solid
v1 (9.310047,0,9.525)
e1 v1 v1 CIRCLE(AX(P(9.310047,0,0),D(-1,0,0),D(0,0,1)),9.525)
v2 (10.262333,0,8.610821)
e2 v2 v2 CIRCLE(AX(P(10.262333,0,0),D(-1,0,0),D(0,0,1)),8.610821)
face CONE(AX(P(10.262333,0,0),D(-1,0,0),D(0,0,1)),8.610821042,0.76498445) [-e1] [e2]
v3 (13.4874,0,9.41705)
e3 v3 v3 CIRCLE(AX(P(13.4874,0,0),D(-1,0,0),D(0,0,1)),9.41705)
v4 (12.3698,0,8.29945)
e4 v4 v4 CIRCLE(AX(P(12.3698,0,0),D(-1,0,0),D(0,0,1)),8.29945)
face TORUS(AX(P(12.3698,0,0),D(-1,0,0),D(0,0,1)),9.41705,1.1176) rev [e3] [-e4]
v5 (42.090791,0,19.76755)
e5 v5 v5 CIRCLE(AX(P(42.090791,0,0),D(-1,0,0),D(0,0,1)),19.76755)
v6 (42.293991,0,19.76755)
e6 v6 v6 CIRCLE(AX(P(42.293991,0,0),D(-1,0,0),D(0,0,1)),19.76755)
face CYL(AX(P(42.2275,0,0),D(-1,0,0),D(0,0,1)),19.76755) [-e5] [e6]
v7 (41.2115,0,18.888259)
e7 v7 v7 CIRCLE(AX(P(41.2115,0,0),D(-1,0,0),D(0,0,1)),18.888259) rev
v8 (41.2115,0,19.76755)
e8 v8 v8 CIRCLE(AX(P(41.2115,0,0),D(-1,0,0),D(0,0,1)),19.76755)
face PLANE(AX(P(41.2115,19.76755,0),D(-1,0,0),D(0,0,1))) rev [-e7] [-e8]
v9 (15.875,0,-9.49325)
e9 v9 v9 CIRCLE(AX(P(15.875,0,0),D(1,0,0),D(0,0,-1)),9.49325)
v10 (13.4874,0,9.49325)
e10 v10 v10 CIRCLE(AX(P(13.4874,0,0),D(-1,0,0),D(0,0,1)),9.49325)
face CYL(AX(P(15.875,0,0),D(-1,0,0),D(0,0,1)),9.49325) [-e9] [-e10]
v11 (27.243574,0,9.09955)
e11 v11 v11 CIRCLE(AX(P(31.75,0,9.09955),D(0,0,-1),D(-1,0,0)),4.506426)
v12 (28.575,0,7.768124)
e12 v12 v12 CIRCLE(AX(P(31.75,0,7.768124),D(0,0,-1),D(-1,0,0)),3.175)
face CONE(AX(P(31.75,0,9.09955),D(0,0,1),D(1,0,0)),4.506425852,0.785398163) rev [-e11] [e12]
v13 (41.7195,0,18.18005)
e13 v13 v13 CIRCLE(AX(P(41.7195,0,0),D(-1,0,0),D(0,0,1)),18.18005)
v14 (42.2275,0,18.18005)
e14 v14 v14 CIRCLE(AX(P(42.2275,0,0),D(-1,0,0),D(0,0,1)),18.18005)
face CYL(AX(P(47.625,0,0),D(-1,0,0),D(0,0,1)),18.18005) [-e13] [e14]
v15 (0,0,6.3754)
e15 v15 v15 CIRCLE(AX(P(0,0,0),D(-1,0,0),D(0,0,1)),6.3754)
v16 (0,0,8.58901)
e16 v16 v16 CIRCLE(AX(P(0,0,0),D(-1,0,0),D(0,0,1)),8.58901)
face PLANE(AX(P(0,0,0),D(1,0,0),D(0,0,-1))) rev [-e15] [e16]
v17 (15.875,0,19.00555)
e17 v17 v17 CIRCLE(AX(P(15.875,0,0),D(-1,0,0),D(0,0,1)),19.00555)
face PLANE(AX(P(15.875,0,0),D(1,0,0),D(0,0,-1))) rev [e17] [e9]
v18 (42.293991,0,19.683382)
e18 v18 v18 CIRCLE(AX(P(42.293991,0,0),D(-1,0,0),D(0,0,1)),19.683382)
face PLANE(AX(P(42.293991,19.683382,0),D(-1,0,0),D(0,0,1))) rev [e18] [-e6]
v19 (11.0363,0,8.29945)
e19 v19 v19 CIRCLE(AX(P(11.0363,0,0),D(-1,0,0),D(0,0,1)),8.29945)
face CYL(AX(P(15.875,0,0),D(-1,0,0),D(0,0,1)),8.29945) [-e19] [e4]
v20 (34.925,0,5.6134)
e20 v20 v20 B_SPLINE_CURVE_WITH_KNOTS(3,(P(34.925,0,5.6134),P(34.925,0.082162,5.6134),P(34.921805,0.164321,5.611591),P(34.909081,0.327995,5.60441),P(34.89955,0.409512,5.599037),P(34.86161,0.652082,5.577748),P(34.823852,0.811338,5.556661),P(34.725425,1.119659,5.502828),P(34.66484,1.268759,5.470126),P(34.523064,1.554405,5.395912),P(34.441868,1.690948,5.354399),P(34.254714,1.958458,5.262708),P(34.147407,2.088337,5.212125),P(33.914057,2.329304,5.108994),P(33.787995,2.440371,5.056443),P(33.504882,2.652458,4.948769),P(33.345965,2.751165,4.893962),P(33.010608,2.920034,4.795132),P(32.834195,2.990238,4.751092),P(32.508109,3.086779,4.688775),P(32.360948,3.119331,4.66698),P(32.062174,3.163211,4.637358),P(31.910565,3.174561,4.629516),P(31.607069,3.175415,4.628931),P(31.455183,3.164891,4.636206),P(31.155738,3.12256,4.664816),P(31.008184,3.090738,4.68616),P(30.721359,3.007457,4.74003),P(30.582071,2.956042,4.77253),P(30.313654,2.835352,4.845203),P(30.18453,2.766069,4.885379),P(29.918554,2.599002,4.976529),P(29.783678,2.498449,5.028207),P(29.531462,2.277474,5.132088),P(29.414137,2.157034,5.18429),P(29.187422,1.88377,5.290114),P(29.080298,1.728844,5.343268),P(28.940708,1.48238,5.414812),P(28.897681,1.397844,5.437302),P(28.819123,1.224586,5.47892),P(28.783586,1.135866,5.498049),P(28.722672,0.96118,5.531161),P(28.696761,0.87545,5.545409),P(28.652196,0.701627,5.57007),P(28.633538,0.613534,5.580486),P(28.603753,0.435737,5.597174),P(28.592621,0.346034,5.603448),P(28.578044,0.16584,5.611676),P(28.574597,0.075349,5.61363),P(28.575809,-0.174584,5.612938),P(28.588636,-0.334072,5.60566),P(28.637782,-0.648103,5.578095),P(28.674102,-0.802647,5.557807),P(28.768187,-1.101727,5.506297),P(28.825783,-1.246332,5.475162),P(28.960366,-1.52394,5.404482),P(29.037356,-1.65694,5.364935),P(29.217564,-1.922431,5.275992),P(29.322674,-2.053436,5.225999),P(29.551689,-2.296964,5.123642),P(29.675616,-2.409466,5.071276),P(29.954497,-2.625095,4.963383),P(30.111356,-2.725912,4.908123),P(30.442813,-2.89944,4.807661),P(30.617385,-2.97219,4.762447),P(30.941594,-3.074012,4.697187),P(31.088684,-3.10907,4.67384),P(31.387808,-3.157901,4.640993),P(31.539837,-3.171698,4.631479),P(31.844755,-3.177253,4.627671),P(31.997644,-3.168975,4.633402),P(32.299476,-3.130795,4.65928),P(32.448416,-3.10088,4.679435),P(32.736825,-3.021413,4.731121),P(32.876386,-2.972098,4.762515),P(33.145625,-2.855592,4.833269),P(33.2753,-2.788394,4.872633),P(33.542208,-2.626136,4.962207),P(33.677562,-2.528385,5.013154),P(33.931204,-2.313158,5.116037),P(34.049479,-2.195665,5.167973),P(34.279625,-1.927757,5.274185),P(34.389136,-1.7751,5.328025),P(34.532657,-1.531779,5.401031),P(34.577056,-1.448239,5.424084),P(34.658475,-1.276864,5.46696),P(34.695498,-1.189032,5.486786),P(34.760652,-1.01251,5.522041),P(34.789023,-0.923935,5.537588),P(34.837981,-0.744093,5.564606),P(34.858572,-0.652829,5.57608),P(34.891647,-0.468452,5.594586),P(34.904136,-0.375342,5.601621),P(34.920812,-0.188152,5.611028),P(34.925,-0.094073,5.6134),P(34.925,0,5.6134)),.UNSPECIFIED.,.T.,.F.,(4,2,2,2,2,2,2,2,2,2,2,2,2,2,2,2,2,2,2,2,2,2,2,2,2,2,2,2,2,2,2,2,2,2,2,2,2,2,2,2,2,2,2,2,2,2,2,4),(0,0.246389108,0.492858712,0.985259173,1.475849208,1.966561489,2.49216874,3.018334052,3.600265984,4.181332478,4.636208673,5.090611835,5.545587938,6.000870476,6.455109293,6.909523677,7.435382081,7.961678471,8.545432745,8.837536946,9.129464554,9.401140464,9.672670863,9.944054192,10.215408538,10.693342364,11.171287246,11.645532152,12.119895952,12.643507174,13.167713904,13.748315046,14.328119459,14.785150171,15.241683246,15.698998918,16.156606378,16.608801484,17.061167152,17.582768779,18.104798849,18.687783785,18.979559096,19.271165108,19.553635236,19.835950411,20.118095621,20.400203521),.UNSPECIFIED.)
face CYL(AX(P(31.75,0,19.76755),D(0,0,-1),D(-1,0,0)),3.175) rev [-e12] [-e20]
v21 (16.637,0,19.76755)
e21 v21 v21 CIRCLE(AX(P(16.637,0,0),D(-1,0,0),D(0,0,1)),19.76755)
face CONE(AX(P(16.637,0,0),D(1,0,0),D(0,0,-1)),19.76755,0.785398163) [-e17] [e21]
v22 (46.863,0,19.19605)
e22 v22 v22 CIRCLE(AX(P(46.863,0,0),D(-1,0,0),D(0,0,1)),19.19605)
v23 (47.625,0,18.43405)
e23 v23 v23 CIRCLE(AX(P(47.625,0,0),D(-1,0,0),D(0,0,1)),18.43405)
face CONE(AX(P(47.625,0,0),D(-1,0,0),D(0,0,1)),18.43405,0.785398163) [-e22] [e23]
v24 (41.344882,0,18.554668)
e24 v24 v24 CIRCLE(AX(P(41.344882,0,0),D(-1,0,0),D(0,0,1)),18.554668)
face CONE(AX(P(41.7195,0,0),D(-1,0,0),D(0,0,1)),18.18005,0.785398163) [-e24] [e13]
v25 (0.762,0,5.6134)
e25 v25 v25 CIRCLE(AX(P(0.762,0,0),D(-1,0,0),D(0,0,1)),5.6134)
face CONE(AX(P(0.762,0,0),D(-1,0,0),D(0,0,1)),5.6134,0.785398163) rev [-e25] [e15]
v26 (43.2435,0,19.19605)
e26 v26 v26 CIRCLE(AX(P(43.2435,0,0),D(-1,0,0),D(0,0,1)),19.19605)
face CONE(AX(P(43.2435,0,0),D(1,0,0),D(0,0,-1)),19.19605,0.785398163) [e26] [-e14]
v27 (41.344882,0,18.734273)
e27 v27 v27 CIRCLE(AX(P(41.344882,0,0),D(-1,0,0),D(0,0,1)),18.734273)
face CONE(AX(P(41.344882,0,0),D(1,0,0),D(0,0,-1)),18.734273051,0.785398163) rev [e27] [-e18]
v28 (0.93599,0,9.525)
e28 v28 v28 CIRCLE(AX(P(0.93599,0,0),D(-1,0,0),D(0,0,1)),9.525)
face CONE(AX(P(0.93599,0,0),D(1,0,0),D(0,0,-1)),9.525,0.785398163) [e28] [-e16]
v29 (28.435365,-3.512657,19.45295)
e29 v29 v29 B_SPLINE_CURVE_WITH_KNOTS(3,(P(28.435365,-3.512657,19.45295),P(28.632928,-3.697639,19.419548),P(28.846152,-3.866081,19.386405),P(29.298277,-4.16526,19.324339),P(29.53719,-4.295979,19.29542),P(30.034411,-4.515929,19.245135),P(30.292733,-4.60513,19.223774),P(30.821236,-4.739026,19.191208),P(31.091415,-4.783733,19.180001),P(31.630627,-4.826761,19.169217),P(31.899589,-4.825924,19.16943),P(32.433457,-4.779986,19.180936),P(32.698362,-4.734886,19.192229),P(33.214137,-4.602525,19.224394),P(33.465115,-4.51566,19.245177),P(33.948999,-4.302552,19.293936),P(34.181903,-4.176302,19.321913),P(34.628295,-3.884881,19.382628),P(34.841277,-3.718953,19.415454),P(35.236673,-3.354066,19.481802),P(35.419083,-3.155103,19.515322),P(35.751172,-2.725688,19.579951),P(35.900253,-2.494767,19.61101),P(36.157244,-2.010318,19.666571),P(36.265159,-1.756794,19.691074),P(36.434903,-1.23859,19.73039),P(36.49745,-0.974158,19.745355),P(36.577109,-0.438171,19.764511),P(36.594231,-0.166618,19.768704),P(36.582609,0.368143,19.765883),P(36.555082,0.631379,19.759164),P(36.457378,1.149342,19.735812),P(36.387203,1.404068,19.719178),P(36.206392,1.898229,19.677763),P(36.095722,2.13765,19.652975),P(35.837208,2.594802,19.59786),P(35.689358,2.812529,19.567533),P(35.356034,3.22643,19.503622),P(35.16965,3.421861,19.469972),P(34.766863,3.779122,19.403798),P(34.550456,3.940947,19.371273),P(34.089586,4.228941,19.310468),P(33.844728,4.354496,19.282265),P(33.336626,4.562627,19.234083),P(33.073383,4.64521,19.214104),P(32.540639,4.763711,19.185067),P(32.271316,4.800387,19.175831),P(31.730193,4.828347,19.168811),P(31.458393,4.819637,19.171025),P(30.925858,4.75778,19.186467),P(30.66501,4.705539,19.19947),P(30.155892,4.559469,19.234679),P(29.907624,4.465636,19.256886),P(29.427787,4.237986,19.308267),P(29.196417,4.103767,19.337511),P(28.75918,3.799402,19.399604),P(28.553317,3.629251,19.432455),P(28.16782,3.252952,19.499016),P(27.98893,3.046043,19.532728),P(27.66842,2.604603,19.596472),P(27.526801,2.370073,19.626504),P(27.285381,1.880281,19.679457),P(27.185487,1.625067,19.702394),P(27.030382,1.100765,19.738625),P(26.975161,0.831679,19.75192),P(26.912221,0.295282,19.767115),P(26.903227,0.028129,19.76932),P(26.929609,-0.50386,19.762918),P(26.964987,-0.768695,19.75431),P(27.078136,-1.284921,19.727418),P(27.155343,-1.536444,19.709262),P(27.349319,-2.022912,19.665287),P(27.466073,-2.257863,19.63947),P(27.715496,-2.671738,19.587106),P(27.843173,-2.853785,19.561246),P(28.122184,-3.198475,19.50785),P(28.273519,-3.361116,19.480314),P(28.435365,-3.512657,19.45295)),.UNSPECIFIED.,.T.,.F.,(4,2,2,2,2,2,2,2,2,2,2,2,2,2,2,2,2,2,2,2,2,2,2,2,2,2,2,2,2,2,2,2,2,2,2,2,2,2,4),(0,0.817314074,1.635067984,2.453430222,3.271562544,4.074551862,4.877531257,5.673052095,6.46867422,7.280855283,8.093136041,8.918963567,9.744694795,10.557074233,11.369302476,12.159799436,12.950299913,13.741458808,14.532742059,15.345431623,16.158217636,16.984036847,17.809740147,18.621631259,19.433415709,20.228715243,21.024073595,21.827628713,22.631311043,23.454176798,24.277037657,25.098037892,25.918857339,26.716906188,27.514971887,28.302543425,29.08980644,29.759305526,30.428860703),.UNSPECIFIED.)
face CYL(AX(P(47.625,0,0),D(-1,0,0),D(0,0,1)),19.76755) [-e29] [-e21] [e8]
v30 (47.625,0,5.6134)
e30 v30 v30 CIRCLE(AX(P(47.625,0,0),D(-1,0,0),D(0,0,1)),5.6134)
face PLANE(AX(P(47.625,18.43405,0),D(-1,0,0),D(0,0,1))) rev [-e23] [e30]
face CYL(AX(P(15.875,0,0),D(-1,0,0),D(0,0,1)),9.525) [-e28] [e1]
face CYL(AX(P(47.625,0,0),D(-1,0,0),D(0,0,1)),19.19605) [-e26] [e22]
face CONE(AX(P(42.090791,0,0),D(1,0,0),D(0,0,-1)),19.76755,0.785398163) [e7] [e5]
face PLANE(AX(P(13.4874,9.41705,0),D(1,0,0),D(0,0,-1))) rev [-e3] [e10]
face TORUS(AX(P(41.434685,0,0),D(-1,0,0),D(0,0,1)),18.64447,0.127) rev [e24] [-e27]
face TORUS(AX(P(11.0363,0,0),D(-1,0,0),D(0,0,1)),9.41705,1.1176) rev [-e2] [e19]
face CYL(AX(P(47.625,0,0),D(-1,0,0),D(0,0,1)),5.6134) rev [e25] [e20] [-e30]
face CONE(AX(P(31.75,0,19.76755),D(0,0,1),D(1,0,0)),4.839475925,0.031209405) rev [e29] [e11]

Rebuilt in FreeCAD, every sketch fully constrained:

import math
import FreeCAD as App
import Part
import Sketcher
from FreeCAD import Vector
Q = App.Units.Quantity


def add_polygon(sketch, points):
    """Adds a closed chain of lines whose ends are joined by coincident constraints."""
    first, n = sketch.GeometryCount, len(points)
    for a, b in zip(points, points[1:] + points[:1]):
        sketch.addGeometry(Part.LineSegment(App.Vector(*a, 0), App.Vector(*b, 0)), False)
    for i in range(n):
        sketch.addConstraint(Sketcher.Constraint("Coincident", first + i, 2, first + (i + 1) % n, 1))

doc = App.newDocument("Part")
body = doc.addObject("PartDesign::Body", "Body")

sketch1 = body.newObject("Sketcher::SketchObject", "Sketch")
sketch1.AttachmentSupport = (doc.getObject("XY_Plane"), [""])
sketch1.MapMode = "FlatFace"
sketch1.addGeometry([
    Part.LineSegment(Vector(0, 8.58901, 0), Vector(0, 0, 0)),
    Part.LineSegment(Vector(0, 0, 0), Vector(15.875, 0, 0)),
    Part.LineSegment(Vector(15.875, 0, 0), Vector(15.875, 9.49325, 0)),
    Part.LineSegment(Vector(15.875, 9.49325, 0), Vector(13.4874, 9.49325, 0)),
    Part.LineSegment(Vector(13.4874, 9.49325, 0), Vector(13.4874, 9.41705, 0)),
    Part.ArcOfCircle(Part.Circle(Vector(12.3698, 9.41705, 0), Vector(0, 0, 1), 1.1176), math.radians(-90), math.radians(0)),
    Part.LineSegment(Vector(12.3698, 8.29945, 0), Vector(11.0363, 8.29945, 0)),
    Part.ArcOfCircle(Part.Circle(Vector(11.0363, 9.41705, 0), Vector(0, 0, 1), 1.1176), math.radians(-133.83038), math.radians(-90)),
    Part.LineSegment(Vector(10.262333, 8.610821, 0), Vector(9.310047, 9.525, 0)),
    Part.LineSegment(Vector(9.310047, 9.525, 0), Vector(0.93599, 9.525, 0)),
    Part.LineSegment(Vector(0.93599, 9.525, 0), Vector(0, 8.58901, 0)),
], False)
sketch1.addConstraint([
    Sketcher.Constraint("Coincident", 0, 2, 1, 1),
    Sketcher.Constraint("Coincident", 1, 2, 2, 1),
    Sketcher.Constraint("Coincident", 2, 2, 3, 1),
    Sketcher.Constraint("Coincident", 3, 2, 4, 1),
    Sketcher.Constraint("Tangent", 4, 2, 5, 2),
    Sketcher.Constraint("Tangent", 5, 1, 6, 1),
    Sketcher.Constraint("Tangent", 6, 2, 7, 2),
    Sketcher.Constraint("Tangent", 7, 1, 8, 1),
    Sketcher.Constraint("Coincident", 8, 2, 9, 1),
    Sketcher.Constraint("Coincident", 9, 2, 10, 1),
    Sketcher.Constraint("Coincident", 10, 2, 0, 1),
    Sketcher.Constraint("Vertical", 0),
    Sketcher.Constraint("Horizontal", 1),
    Sketcher.Constraint("Vertical", 2),
    Sketcher.Constraint("Horizontal", 3),
    Sketcher.Constraint("Vertical", 4),
    Sketcher.Constraint("Horizontal", 6),
    Sketcher.Constraint("Horizontal", 9),
    Sketcher.Constraint("Coincident", 0, 2, -1, 1),
    Sketcher.Constraint("Equal", 5, 7),
    Sketcher.Constraint("Angle", 10, Q("-135 deg")),
    Sketcher.Constraint("Radius", 5, Q("0.044 in")),
    Sketcher.Constraint("DistanceX", 1, 1, 1, 2, Q("0.625 in")),
    Sketcher.Constraint("DistanceX", 3, 2, 3, 1, Q("0.094 in")),
    Sketcher.Constraint("DistanceY", 4, 2, 4, 1, Q("0.003 in")),
    Sketcher.Constraint("DistanceX", 6, 2, 6, 1, Q("0.0525 in")),
    Sketcher.Constraint("DistanceY", -1, 1, 8, 2, Q("0.375 in")),
    Sketcher.Constraint("DistanceY", 6, 2, 10, 2, Q("0.0114 in")),
    Sketcher.Constraint("DistanceY", 0, 2, 0, 1, 8.58901),
    Sketcher.Constraint("DistanceX", 9, 2, 9, 1, 8.374057),
])
revolution = body.newObject("PartDesign::Revolution", "Revolution")
revolution.Profile = sketch1
revolution.ReferenceAxis = (sketch1, ["H_Axis"])
revolution.Angle = 360

sketch2 = body.newObject("Sketcher::SketchObject", "Sketch001")
sketch2.AttachmentSupport = (doc.getObject("XY_Plane"), [""])
sketch2.MapMode = "FlatFace"
add_polygon(sketch2, [(15.875, 19.00555), (15.875, 0), (47.625, 0), (47.625, 18.43405), (46.863, 19.19605), (43.2435, 19.19605), (42.2275, 18.18005), (41.2115, 18.18005), (41.2115, 19.76755), (16.637, 19.76755)])
sketch2.addConstraint([
    Sketcher.Constraint("Vertical", 0),
    Sketcher.Constraint("Horizontal", 1),
    Sketcher.Constraint("Vertical", 2),
    Sketcher.Constraint("Horizontal", 4),
    Sketcher.Constraint("Horizontal", 6),
    Sketcher.Constraint("Vertical", 7),
    Sketcher.Constraint("Horizontal", 8),
    Sketcher.Constraint("PointOnObject", 0, 2, -1),
    Sketcher.Constraint("Perpendicular", 3, 5),
    Sketcher.Constraint("Parallel", 5, 9),
    Sketcher.Constraint("Equal", 3, 9),
    Sketcher.Constraint("Angle", 3, Q("135 deg")),
    Sketcher.Constraint("DistanceX", 1, 1, 1, 2, Q("1.25 in")),
    Sketcher.Constraint("DistanceX", 6, 2, 6, 1, Q("0.04 in")),
    Sketcher.Constraint("DistanceY", 7, 1, 7, 2, Q("0.0625 in")),
    Sketcher.Constraint("DistanceX", 3, 2, 2, 2, Q("0.03 in")),
    Sketcher.Constraint("DistanceX", 5, 2, 4, 2, Q("0.04 in")),
    Sketcher.Constraint("DistanceX", 4, 2, 4, 1, Q("0.1425 in")),
    Sketcher.Constraint("DistanceX", -1, 1, 0, 2, Q("0.625 in")),
    Sketcher.Constraint("DistanceY", 0, 2, 0, 1, 19.00555),
])
revolution2 = body.newObject("PartDesign::Revolution", "Revolution001")
revolution2.Profile = sketch2
revolution2.ReferenceAxis = (sketch2, ["H_Axis"])
revolution2.Angle = 360

sketch3 = body.newObject("Sketcher::SketchObject", "Sketch002")
sketch3.AttachmentSupport = (doc.getObject("XY_Plane"), [""])
sketch3.MapMode = "FlatFace"
add_polygon(sketch3, [(0, 6.3754), (0, 0), (47.625, 0), (47.625, 5.6134), (0.762, 5.6134)])
sketch3.addConstraint([
    Sketcher.Constraint("Vertical", 0),
    Sketcher.Constraint("Horizontal", 1),
    Sketcher.Constraint("Vertical", 2),
    Sketcher.Constraint("Horizontal", 3),
    Sketcher.Constraint("Coincident", 0, 2, -1, 1),
    Sketcher.Constraint("Angle", 4, Q("135 deg")),
    Sketcher.Constraint("DistanceX", 1, 1, 1, 2, Q("1.875 in")),
    Sketcher.Constraint("DistanceX", 3, 2, 3, 1, Q("1.845 in")),
    Sketcher.Constraint("DistanceY", 0, 2, 0, 1, Q("0.251 in")),
])
groove = body.newObject("PartDesign::Groove", "Groove")
groove.Profile = sketch3
groove.ReferenceAxis = (sketch3, ["H_Axis"])
groove.Angle = 360

sketch4 = body.newObject("Sketcher::SketchObject", "Sketch003")
sketch4.AttachmentSupport = (doc.getObject("XZ_Plane"), [""])
sketch4.MapMode = "FlatFace"
add_polygon(sketch4, [(34.925, 0), (31.75, 0), (31.75, 19.76755), (36.589476, 19.76755), (36.256426, 9.09955), (34.925, 7.768124)])
sketch4.addGeometry(Part.LineSegment(Vector(31.75, 19.76755, 0), Vector(31.75, 0, 0)), True)
sketch4.addConstraint([
    Sketcher.Constraint("Horizontal", 0),
    Sketcher.Constraint("Vertical", 1),
    Sketcher.Constraint("Horizontal", 2),
    Sketcher.Constraint("Vertical", 5),
    Sketcher.Constraint("Vertical", 6),
    Sketcher.Constraint("Coincident", 6, 1, 1, 2),
    Sketcher.Constraint("PointOnObject", 0, 2, -1),
    Sketcher.Constraint("PointOnObject", 6, 2, -1),
    Sketcher.Constraint("Angle", 4, Q("-135 deg")),
    Sketcher.Constraint("DistanceX", 0, 2, 0, 1, Q("0.125 in")),
    Sketcher.Constraint("DistanceX", -1, 1, 0, 2, Q("1.25 in")),
    Sketcher.Constraint("DistanceY", 3, 2, 2, 2, Q("0.42 in")),
    Sketcher.Constraint("DistanceY", 1, 1, 1, 2, 19.76755),
    Sketcher.Constraint("Distance", 4, 1.88292),
    Sketcher.Constraint("DistanceX", 2, 1, 2, 2, 4.839476),
])
groove2 = body.newObject("PartDesign::Groove", "Groove001")
groove2.Profile = sketch4
groove2.ReferenceAxis = (sketch4, ["Axis0"])
groove2.Angle = 360

sketch5 = body.newObject("Sketcher::SketchObject", "Sketch004")
sketch5.AttachmentSupport = (doc.getObject("XY_Plane"), [""])
sketch5.MapMode = "FlatFace"
sketch5.addGeometry([
    Part.LineSegment(Vector(41.2115, 18.888259, 0), Vector(41.2115, 17.92605, 0)),
    Part.LineSegment(Vector(41.2115, 17.92605, 0), Vector(42.2275, 17.92605, 0)),
    Part.LineSegment(Vector(42.2275, 17.92605, 0), Vector(42.2275, 18.18005, 0)),
    Part.LineSegment(Vector(42.2275, 18.18005, 0), Vector(41.7195, 18.18005, 0)),
    Part.LineSegment(Vector(41.7195, 18.18005, 0), Vector(41.344882, 18.554668, 0)),
    Part.ArcOfCircle(Part.Circle(Vector(41.434685, 18.64447, 0), Vector(0, 0, 1), 0.127), math.radians(135), math.radians(225)),
    Part.LineSegment(Vector(41.344882, 18.734273, 0), Vector(42.293991, 19.683382, 0)),
    Part.LineSegment(Vector(42.293991, 19.683382, 0), Vector(42.293991, 19.76755, 0)),
    Part.LineSegment(Vector(42.293991, 19.76755, 0), Vector(42.090791, 19.76755, 0)),
    Part.LineSegment(Vector(42.090791, 19.76755, 0), Vector(41.2115, 18.888259, 0)),
], False)
sketch5.addConstraint([
    Sketcher.Constraint("Coincident", 0, 2, 1, 1),
    Sketcher.Constraint("Coincident", 1, 2, 2, 1),
    Sketcher.Constraint("Coincident", 2, 2, 3, 1),
    Sketcher.Constraint("Coincident", 3, 2, 4, 1),
    Sketcher.Constraint("Tangent", 4, 2, 5, 2),
    Sketcher.Constraint("Tangent", 5, 1, 6, 1),
    Sketcher.Constraint("Coincident", 6, 2, 7, 1),
    Sketcher.Constraint("Coincident", 7, 2, 8, 1),
    Sketcher.Constraint("Coincident", 8, 2, 9, 1),
    Sketcher.Constraint("Coincident", 9, 2, 0, 1),
    Sketcher.Constraint("Vertical", 0),
    Sketcher.Constraint("Horizontal", 1),
    Sketcher.Constraint("Vertical", 2),
    Sketcher.Constraint("Horizontal", 3),
    Sketcher.Constraint("Vertical", 7),
    Sketcher.Constraint("Horizontal", 8),
    Sketcher.Constraint("Perpendicular", 4, 6),
    Sketcher.Constraint("Parallel", 6, 9),
    Sketcher.Constraint("Vertical", 4, 2, 5, 1),
    Sketcher.Constraint("Radius", 5, Q("0.005 in")),
    Sketcher.Constraint("DistanceX", 1, 1, 1, 2, Q("0.04 in")),
    Sketcher.Constraint("DistanceX", 3, 2, 3, 1, Q("0.02 in")),
    Sketcher.Constraint("DistanceY", 2, 1, 2, 2, Q("0.01 in")),
    Sketcher.Constraint("DistanceX", 8, 2, 8, 1, Q("0.008 in")),
    Sketcher.Constraint("DistanceY", 2, 2, 7, 2, Q("0.0625 in")),
    Sketcher.Constraint("DistanceX", -1, 1, 0, 2, Q("1.6225 in")),
    Sketcher.Constraint("DistanceY", 0, 2, 0, 1, 0.962209),
    Sketcher.Constraint("DistanceY", 7, 1, 7, 2, 0.084168),
    Sketcher.Constraint("DistanceY", -1, 1, 5, 3, 18.64447),
])
revolution3 = body.newObject("PartDesign::Revolution", "Revolution002")
revolution3.Profile = sketch5
revolution3.ReferenceAxis = (sketch5, ["H_Axis"])
revolution3.Angle = 360

doc.recompute()
